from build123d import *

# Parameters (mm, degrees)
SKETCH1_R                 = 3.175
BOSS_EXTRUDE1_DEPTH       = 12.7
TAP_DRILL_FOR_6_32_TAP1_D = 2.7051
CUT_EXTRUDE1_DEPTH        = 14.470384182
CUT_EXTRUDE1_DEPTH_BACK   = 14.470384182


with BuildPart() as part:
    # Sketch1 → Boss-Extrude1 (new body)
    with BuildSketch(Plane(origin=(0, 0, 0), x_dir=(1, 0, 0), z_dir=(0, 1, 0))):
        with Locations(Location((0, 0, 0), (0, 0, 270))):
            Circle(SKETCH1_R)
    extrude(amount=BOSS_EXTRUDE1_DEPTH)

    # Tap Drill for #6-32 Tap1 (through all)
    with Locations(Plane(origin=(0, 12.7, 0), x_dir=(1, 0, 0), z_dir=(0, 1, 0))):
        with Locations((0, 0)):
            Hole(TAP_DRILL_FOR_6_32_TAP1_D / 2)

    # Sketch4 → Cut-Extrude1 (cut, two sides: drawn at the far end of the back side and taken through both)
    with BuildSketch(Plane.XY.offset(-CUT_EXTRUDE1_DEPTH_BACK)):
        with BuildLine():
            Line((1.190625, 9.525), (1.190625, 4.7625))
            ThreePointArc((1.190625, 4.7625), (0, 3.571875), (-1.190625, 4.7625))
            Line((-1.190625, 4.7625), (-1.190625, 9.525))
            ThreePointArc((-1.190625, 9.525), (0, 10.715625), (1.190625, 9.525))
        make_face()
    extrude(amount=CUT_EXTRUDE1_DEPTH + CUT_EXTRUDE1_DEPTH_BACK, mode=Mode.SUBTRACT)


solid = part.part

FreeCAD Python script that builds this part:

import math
import FreeCAD as App
import Part
import Sketcher

V = App.Vector
Q = App.Units.Quantity

doc = App.newDocument("Part")
body = doc.addObject("PartDesign::Body", "Body")

sketch1 = body.newObject("Sketcher::SketchObject", "Sketch")
sketch1.AttachmentSupport = (doc.getObject("XZ_Plane"), [""])
sketch1.MapMode = "FlatFace"
sketch1.addGeometry(Part.Circle(V(0, 0, 0), V(0, 0, 1), 3.2), False)
sketch1.addConstraint([
    Sketcher.Constraint("Coincident", 0, 3, -1, 1),
    Sketcher.Constraint("Diameter", 0, Q("0.25 in")),
])
pad1 = body.newObject("PartDesign::Pad", "Pad")
pad1.Profile = sketch1
pad1.Length = Q("0.5 in")
pad1.Reversed = True

sketch2 = body.newObject("Sketcher::SketchObject", "Sketch001")
sketch2.AttachmentSupport = (doc.getObject("XZ_Plane"), [""])
sketch2.MapMode = "FlatFace"
sketch2.AttachmentOffset = App.Placement(V(0, 0, -0.5 * 25.4), App.Rotation())
sketch2.addGeometry(Part.Circle(V(0, 0, 0), V(0, 0, 1), 1.4), False)
sketch2.addConstraint([
    Sketcher.Constraint("Coincident", 0, 3, -1, 1),
    Sketcher.Constraint("Diameter", 0, Q("0.1065 in")),
])
doc.recompute()
hole = body.newObject("PartDesign::Hole", "Hole")
hole.Profile = sketch2
hole.ThreadType = "None"
hole.Diameter = Q("0.1065 in")
hole.DepthType = "ThroughAll"
hole.Reversed = True

sketch3 = body.newObject("Sketcher::SketchObject", "Sketch002")
sketch3.AttachmentSupport = (doc.getObject("XY_Plane"), [""])
sketch3.MapMode = "FlatFace"
sketch3.addGeometry([
    Part.LineSegment(V(1.2, 4.8, 0), V(1.2, 9.5, 0)),
    Part.ArcOfCircle(Part.Circle(V(0, 9.5, 0), V(0, 0, 1), 1.2), math.radians(0), math.radians(180)),
    Part.LineSegment(V(-1.2, 9.5, 0), V(-1.2, 4.8, 0)),
    Part.ArcOfCircle(Part.Circle(V(0, 4.8, 0), V(0, 0, 1), 1.2), math.radians(180), math.radians(360)),
], False)
sketch3.addConstraint([
    Sketcher.Constraint("Tangent", 0, 2, 1, 1),
    Sketcher.Constraint("Tangent", 1, 2, 2, 1),
    Sketcher.Constraint("Tangent", 2, 2, 3, 1),
    Sketcher.Constraint("Tangent", 3, 2, 0, 1),
    Sketcher.Constraint("Vertical", 0),
    Sketcher.Constraint("Vertical", 2),
    Sketcher.Constraint("PointOnObject", 1, 3, -2),
    Sketcher.Constraint("Radius", 1, Q("0.046875 in")),
    Sketcher.Constraint("DistanceY", 0, 1, 0, 2, Q("0.1875 in")),
    Sketcher.Constraint("DistanceY", -1, 1, 1, 3, Q("0.375 in")),
])
pocket1 = body.newObject("PartDesign::Pocket", "Pocket")
pocket1.Profile = sketch3
pocket1.Type = "ThroughAll"
pocket1.Midplane = True

doc.recompute()
